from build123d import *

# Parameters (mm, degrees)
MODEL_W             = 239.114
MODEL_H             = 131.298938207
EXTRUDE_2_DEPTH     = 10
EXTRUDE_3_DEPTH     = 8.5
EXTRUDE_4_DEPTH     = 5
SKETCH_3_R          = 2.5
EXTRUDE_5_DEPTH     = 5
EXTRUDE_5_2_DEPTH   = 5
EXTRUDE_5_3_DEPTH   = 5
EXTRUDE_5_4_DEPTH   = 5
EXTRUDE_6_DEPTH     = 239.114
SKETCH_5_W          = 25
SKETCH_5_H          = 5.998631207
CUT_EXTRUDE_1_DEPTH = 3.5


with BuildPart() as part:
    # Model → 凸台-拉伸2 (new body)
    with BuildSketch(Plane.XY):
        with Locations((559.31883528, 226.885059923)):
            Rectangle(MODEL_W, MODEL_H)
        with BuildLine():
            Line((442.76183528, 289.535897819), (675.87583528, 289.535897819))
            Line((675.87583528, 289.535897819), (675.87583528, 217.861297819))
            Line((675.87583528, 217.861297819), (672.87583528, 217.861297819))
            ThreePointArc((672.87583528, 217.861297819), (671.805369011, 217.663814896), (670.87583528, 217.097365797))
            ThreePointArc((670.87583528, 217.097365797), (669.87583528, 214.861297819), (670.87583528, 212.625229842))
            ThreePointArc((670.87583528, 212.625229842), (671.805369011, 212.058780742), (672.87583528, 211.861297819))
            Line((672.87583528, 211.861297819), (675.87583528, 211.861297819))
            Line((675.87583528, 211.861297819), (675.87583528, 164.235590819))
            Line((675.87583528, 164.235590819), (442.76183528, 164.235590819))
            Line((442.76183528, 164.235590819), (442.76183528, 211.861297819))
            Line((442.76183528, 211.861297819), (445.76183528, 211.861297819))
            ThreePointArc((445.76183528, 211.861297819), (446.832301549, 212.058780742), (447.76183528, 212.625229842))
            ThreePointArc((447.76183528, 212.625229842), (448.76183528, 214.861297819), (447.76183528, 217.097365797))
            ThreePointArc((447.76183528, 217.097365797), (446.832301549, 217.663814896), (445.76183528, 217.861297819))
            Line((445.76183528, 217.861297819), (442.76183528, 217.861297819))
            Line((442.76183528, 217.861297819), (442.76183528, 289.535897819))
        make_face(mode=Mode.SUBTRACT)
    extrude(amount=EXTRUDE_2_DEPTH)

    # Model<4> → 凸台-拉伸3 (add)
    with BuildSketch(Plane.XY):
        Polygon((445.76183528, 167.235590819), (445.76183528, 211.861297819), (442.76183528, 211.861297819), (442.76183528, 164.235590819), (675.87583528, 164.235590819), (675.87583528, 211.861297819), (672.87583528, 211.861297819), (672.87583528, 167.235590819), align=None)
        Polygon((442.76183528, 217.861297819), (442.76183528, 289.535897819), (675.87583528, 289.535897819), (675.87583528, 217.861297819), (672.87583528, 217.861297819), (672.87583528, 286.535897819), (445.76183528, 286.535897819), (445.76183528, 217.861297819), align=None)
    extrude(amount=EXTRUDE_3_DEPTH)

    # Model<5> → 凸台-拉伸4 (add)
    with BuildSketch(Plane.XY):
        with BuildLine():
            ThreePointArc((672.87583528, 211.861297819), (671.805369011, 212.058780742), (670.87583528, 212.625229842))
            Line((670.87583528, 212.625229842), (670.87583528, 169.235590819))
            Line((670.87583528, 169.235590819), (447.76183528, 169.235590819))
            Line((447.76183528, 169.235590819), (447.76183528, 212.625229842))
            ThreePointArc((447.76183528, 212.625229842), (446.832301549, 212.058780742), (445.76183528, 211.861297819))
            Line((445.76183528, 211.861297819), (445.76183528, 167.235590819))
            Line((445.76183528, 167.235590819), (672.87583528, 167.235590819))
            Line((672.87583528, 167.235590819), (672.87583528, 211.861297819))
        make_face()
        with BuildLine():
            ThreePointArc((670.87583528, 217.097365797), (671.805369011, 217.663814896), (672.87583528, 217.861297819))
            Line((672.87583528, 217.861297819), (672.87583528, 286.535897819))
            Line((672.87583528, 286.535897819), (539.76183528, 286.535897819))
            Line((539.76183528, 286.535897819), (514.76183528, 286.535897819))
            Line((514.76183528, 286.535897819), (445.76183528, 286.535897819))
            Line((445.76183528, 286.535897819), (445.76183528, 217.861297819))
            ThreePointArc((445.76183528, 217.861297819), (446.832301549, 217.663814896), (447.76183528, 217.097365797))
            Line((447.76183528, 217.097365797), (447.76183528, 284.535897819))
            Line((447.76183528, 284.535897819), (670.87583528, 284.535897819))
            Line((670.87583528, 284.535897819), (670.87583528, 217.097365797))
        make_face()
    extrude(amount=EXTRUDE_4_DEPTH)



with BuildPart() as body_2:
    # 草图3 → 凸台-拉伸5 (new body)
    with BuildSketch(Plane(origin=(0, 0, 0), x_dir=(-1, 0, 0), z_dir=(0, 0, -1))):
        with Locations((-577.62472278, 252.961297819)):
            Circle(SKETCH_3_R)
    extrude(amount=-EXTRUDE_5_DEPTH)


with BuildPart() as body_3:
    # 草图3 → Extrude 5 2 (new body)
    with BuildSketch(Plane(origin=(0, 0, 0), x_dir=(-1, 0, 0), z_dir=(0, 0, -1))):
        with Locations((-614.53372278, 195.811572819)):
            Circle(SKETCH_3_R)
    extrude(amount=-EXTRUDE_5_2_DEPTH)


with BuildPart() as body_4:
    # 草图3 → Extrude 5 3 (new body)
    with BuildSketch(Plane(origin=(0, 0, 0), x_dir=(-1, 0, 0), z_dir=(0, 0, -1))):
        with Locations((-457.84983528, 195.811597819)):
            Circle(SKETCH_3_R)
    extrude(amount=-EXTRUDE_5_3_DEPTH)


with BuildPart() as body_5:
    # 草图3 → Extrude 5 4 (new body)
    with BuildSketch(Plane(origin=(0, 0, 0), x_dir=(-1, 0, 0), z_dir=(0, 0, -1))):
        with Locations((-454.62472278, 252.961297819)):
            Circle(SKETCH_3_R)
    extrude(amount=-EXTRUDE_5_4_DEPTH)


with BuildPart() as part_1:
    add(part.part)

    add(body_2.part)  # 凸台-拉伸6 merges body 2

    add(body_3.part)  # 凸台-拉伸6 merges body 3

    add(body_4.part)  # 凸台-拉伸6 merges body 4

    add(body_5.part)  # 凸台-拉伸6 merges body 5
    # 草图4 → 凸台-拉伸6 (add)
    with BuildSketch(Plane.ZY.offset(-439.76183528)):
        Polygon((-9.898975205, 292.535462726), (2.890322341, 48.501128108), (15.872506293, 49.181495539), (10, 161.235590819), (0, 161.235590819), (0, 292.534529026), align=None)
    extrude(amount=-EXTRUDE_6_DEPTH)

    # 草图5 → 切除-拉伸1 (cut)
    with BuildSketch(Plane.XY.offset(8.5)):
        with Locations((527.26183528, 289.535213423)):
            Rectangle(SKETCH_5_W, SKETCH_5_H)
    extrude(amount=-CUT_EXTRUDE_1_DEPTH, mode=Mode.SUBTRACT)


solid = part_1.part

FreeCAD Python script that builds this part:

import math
import FreeCAD as App
import Part
import Sketcher
Q = App.Units.Quantity


def add_polygon(sketch, points):
    """Adds a closed chain of lines whose ends are joined by coincident constraints."""
    first, n = sketch.GeometryCount, len(points)
    for a, b in zip(points, points[1:] + points[:1]):
        sketch.addGeometry(Part.LineSegment(App.Vector(*a, 0), App.Vector(*b, 0)), False)
    for i in range(n):
        sketch.addConstraint(Sketcher.Constraint("Coincident", first + i, 2, first + (i + 1) % n, 1))

doc = App.newDocument("Part")
params = doc.addObject("Spreadsheet::Sheet", "Params")
for row, (alias, value) in enumerate([
    ("sketch1_radius", "3 mm"),
    ("sketch1_width", "3 mm"),
    ("pad1_length", "10 mm"),
    ("sketch2_width", "3 mm"),
    ("pad2_length", "8.5 mm"),
    ("sketch3_radius", "3 mm"),
    ("sketch3_width", "2 mm"),
    ("pad3_length", "5 mm"),
    ("sketch4_diameter", "5 mm"),
    ("pad4_length", "5 mm"),
    ("sketch5_diameter", "5 mm"),
    ("pad5_length", "5 mm"),
    ("sketch6_diameter", "5 mm"),
    ("pad6_length", "5 mm"),
    ("sketch7_diameter", "5 mm"),
    ("pad7_length", "5 mm"),
    ("sketch8_height", "10 mm"),
    ("sketch8_length", "13 mm"),
    ("pad8_length", "239.114 mm"),
    ("sketch9_width", "25 mm"),
    ("pocket1_length", "3.5 mm"),
], start=1):
    params.set(f"A{row}", alias)
    params.set(f"B{row}", "=" + value)
    params.setAlias(f"B{row}", alias)

body = doc.addObject("PartDesign::Body", "Body")

# Sketch on XY plane
sketch1 = body.newObject("Sketcher::SketchObject", "Sketch")
sketch1.AttachmentSupport = (doc.getObject("XY_Plane"), [""])
sketch1.MapMode = "FlatFace"
add_polygon(sketch1, [(439.8, 292.5), (439.8, 161.2), (678.9, 161.2), (678.9, 292.5)])  # lines 0-3
sketch1.addGeometry(Part.LineSegment(App.Vector(442.8, 217.9, 0), App.Vector(442.8, 289.5, 0)), False)  # 4
sketch1.addGeometry(Part.LineSegment(App.Vector(442.8, 289.5, 0), App.Vector(675.9, 289.5, 0)), False)  # 5
sketch1.addGeometry(Part.LineSegment(App.Vector(675.9, 289.5, 0), App.Vector(675.9, 217.9, 0)), False)  # 6
sketch1.addGeometry(Part.LineSegment(App.Vector(675.9, 217.9, 0), App.Vector(672.9, 217.9, 0)), False)  # 7
sketch1.addGeometry(Part.ArcOfCircle(Part.Circle(App.Vector(672.9, 214.9, 0), App.Vector(0, 0, 1), 3), math.radians(90), math.radians(132)), False)  # 8
sketch1.addGeometry(Part.ArcOfCircle(Part.Circle(App.Vector(672.9, 214.9, 0), App.Vector(0, 0, 1), 3), math.radians(132), math.radians(228)), False)  # 9
sketch1.addGeometry(Part.ArcOfCircle(Part.Circle(App.Vector(672.9, 214.9, 0), App.Vector(0, 0, 1), 3), math.radians(-132), math.radians(-90)), False)  # 10
sketch1.addGeometry(Part.LineSegment(App.Vector(672.9, 211.9, 0), App.Vector(675.9, 211.9, 0)), False)  # 11
sketch1.addGeometry(Part.LineSegment(App.Vector(675.9, 211.9, 0), App.Vector(675.9, 164.2, 0)), False)  # 12
sketch1.addGeometry(Part.LineSegment(App.Vector(675.9, 164.2, 0), App.Vector(442.8, 164.2, 0)), False)  # 13
sketch1.addGeometry(Part.LineSegment(App.Vector(442.8, 164.2, 0), App.Vector(442.8, 211.9, 0)), False)  # 14
sketch1.addGeometry(Part.LineSegment(App.Vector(442.8, 211.9, 0), App.Vector(445.8, 211.9, 0)), False)  # 15
sketch1.addGeometry(Part.ArcOfCircle(Part.Circle(App.Vector(445.8, 214.9, 0), App.Vector(0, 0, 1), 3), math.radians(-90), math.radians(-48)), False)  # 16
sketch1.addGeometry(Part.ArcOfCircle(Part.Circle(App.Vector(445.8, 214.9, 0), App.Vector(0, 0, 1), 3), math.radians(-48), math.radians(48)), False)  # 17
sketch1.addGeometry(Part.ArcOfCircle(Part.Circle(App.Vector(445.8, 214.9, 0), App.Vector(0, 0, 1), 3), math.radians(48), math.radians(90)), False)  # 18
sketch1.addGeometry(Part.LineSegment(App.Vector(445.8, 217.9, 0), App.Vector(442.8, 217.9, 0)), False)  # 19
sketch1.addConstraint([
    Sketcher.Constraint("Coincident", 4, 2, 5, 1),
    Sketcher.Constraint("Coincident", 5, 2, 6, 1),
    Sketcher.Constraint("Coincident", 6, 2, 7, 1),
    Sketcher.Constraint("Tangent", 7, 2, 8, 1),
    Sketcher.Constraint("Tangent", 8, 2, 9, 1),
    Sketcher.Constraint("Tangent", 9, 2, 10, 1),
    Sketcher.Constraint("Tangent", 10, 2, 11, 1),
    Sketcher.Constraint("Coincident", 11, 2, 12, 1),
    Sketcher.Constraint("Coincident", 12, 2, 13, 1),
    Sketcher.Constraint("Coincident", 13, 2, 14, 1),
    Sketcher.Constraint("Coincident", 14, 2, 15, 1),
    Sketcher.Constraint("Tangent", 15, 2, 16, 1),
    Sketcher.Constraint("Tangent", 16, 2, 17, 1),
    Sketcher.Constraint("Tangent", 17, 2, 18, 1),
    Sketcher.Constraint("Tangent", 18, 2, 19, 1),
    Sketcher.Constraint("Coincident", 19, 2, 4, 1),
    Sketcher.Constraint("Vertical", 0),
    Sketcher.Constraint("Horizontal", 1),
    Sketcher.Constraint("Vertical", 2),
    Sketcher.Constraint("Horizontal", 3),
    Sketcher.Constraint("Vertical", 4),
    Sketcher.Constraint("Horizontal", 5),
    Sketcher.Constraint("Vertical", 6),
    Sketcher.Constraint("Horizontal", 7),
    Sketcher.Constraint("Horizontal", 11),
    Sketcher.Constraint("Vertical", 12),
    Sketcher.Constraint("Horizontal", 13),
    Sketcher.Constraint("Vertical", 14),
    Sketcher.Constraint("Horizontal", 15),
    Sketcher.Constraint("Horizontal", 19),
    Sketcher.Constraint("Coincident", 10, 3, 8, 3),
    Sketcher.Constraint("Coincident", 18, 3, 16, 3),
    Sketcher.Constraint("Equal", 10, 16),
    Sketcher.Constraint("Horizontal", 10, 3, 16, 3),
    Sketcher.Constraint("Horizontal", 9, 2, 16, 2),
    Sketcher.Constraint("Horizontal", 8, 2, 17, 2),
    Sketcher.Constraint("Vertical", 8, 2, 9, 2),
    Sketcher.Constraint("Vertical", 6, 2, 11, 2),
    Sketcher.Constraint("Vertical", 4, 2, 13, 2),
    Sketcher.Constraint("Equal", 11, 15),
    Sketcher.Constraint("Radius", 8, Q("3 mm")),
    Sketcher.Constraint("DistanceX", 7, 2, 7, 1, Q("3 mm")),
    Sketcher.Constraint("DistanceX", 0, 2, 18, 3, Q("6 mm")),
    Sketcher.Constraint("DistanceX", 8, 3, 1, 2, Q("6 mm")),
    Sketcher.Constraint("DistanceX", 8, 2, 7, 2, Q("2 mm")),
    Sketcher.Constraint("DistanceY", 1, 2, 12, 2, Q("3 mm")),
    Sketcher.Constraint("DistanceX", 1, 1, 1, 2, Q("239.114 mm")),
    Sketcher.Constraint("DistanceY", 4, 1, 4, 2, Q("71.6746 mm")),
    Sketcher.Constraint("DistanceY", 0, 2, 0, 1, Q("131.298938 mm")),
    Sketcher.Constraint("DistanceY", 12, 2, 12, 1, Q("47.625707 mm")),
    Sketcher.Constraint("DistanceY", -1, 1, 0, 2, Q("161.235591 mm")),
    Sketcher.Constraint("DistanceX", -1, 1, 8, 3, Q("672.875835 mm")),
])
sketch1.setExpression("Constraints[44]", "Params.sketch1_radius")
sketch1.setExpression("Constraints[45]", "Params.sketch1_width")
pad1 = body.newObject("PartDesign::Pad", "Pad")
pad1.Profile = sketch1
pad1.setExpression("Length", "Params.pad1_length")

# Sketch on XY plane
sketch2 = body.newObject("Sketcher::SketchObject", "Sketch001")
sketch2.AttachmentSupport = (doc.getObject("XY_Plane"), [""])
sketch2.MapMode = "FlatFace"
add_polygon(sketch2, [(445.8, 167.2), (445.8, 211.9), (442.8, 211.9), (442.8, 164.2), (675.9, 164.2), (675.9, 211.9), (672.9, 211.9), (672.9, 167.2)])  # lines 0-7
add_polygon(sketch2, [(442.8, 289.5), (442.8, 217.9), (445.8, 217.9), (445.8, 286.5), (672.9, 286.5), (672.9, 217.9), (675.9, 217.9), (675.9, 289.5)])  # lines 8-15
sketch2.addConstraint([
    Sketcher.Constraint("Vertical", 0),
    Sketcher.Constraint("Horizontal", 1),
    Sketcher.Constraint("Vertical", 2),
    Sketcher.Constraint("Horizontal", 3),
    Sketcher.Constraint("Vertical", 4),
    Sketcher.Constraint("Horizontal", 5),
    Sketcher.Constraint("Vertical", 6),
    Sketcher.Constraint("Horizontal", 7),
    Sketcher.Constraint("Vertical", 8),
    Sketcher.Constraint("Horizontal", 9),
    Sketcher.Constraint("Vertical", 10),
    Sketcher.Constraint("Horizontal", 11),
    Sketcher.Constraint("Vertical", 12),
    Sketcher.Constraint("Horizontal", 13),
    Sketcher.Constraint("Vertical", 14),
    Sketcher.Constraint("Horizontal", 15),
    Sketcher.Constraint("Horizontal", 1, 2, 4, 2),
    Sketcher.Constraint("Horizontal", 9, 2, 12, 2),
    Sketcher.Constraint("Vertical", 2, 2, 8, 2),
    Sketcher.Constraint("Vertical", 7, 2, 9, 2),
    Sketcher.Constraint("Vertical", 6, 2, 11, 2),
    Sketcher.Constraint("Vertical", 4, 2, 13, 2),
    Sketcher.Constraint("Equal", 1, 5),
    Sketcher.Constraint("DistanceX", 1, 2, 1, 1, Q("3 mm")),
    Sketcher.Constraint("DistanceY", 3, 2, 6, 2, Q("3 mm")),
    Sketcher.Constraint("DistanceY", 1, 2, 8, 2, Q("6 mm")),
    Sketcher.Constraint("DistanceY", 11, 2, 14, 2, Q("3 mm")),
    Sketcher.Constraint("DistanceX", 3, 1, 3, 2, Q("233.114 mm")),
    Sketcher.Constraint("DistanceY", 8, 2, 8, 1, Q("71.6746 mm")),
    Sketcher.Constraint("DistanceY", 0, 1, 0, 2, Q("44.625707 mm")),
    Sketcher.Constraint("DistanceY", -1, 1, 2, 2, Q("164.235591 mm")),
    Sketcher.Constraint("DistanceX", -1, 1, 0, 2, Q("445.761835 mm")),
])
sketch2.setExpression("Constraints[39]", "Params.sketch2_width")
pad2 = body.newObject("PartDesign::Pad", "Pad001")
pad2.Profile = sketch2
pad2.setExpression("Length", "Params.pad2_length")

# Sketch on XY plane
sketch3 = body.newObject("Sketcher::SketchObject", "Sketch002")
sketch3.AttachmentSupport = (doc.getObject("XY_Plane"), [""])
sketch3.MapMode = "FlatFace"
sketch3.addGeometry([
    Part.ArcOfCircle(Part.Circle(App.Vector(672.9, 214.9, 0), App.Vector(0, 0, 1), 3), math.radians(-132), math.radians(-90)),  # 0
    Part.LineSegment(App.Vector(670.9, 212.6, 0), App.Vector(670.9, 169.2, 0)),  # 1
    Part.LineSegment(App.Vector(670.9, 169.2, 0), App.Vector(447.8, 169.2, 0)),  # 2
    Part.LineSegment(App.Vector(447.8, 169.2, 0), App.Vector(447.8, 212.6, 0)),  # 3
    Part.ArcOfCircle(Part.Circle(App.Vector(445.8, 214.9, 0), App.Vector(0, 0, 1), 3), math.radians(-90), math.radians(-48)),  # 4
    Part.LineSegment(App.Vector(445.8, 211.9, 0), App.Vector(445.8, 167.2, 0)),  # 5
    Part.LineSegment(App.Vector(445.8, 167.2, 0), App.Vector(672.9, 167.2, 0)),  # 6
    Part.LineSegment(App.Vector(672.9, 167.2, 0), App.Vector(672.9, 211.9, 0)),  # 7
    Part.ArcOfCircle(Part.Circle(App.Vector(672.9, 214.9, 0), App.Vector(0, 0, 1), 3), math.radians(90), math.radians(132)),  # 8
    Part.LineSegment(App.Vector(672.9, 217.9, 0), App.Vector(672.9, 286.5, 0)),  # 9
    Part.LineSegment(App.Vector(672.9, 286.5, 0), App.Vector(445.8, 286.5, 0)),  # 10
    Part.LineSegment(App.Vector(445.8, 286.5, 0), App.Vector(445.8, 217.9, 0)),  # 11
    Part.ArcOfCircle(Part.Circle(App.Vector(445.8, 214.9, 0), App.Vector(0, 0, 1), 3), math.radians(48), math.radians(90)),  # 12
    Part.LineSegment(App.Vector(447.8, 217.1, 0), App.Vector(447.8, 284.5, 0)),  # 13
    Part.LineSegment(App.Vector(447.8, 284.5, 0), App.Vector(670.9, 284.5, 0)),  # 14
    Part.LineSegment(App.Vector(670.9, 284.5, 0), App.Vector(670.9, 217.1, 0)),  # 15
], False)
sketch3.addConstraint([
    Sketcher.Constraint("Coincident", 0, 1, 1, 1),
    Sketcher.Constraint("Coincident", 1, 2, 2, 1),
    Sketcher.Constraint("Coincident", 2, 2, 3, 1),
    Sketcher.Constraint("Coincident", 3, 2, 4, 2),
    Sketcher.Constraint("Coincident", 4, 1, 5, 1),
    Sketcher.Constraint("Coincident", 5, 2, 6, 1),
    Sketcher.Constraint("Coincident", 6, 2, 7, 1),
    Sketcher.Constraint("Coincident", 7, 2, 0, 2),
    Sketcher.Constraint("Coincident", 8, 1, 9, 1),
    Sketcher.Constraint("Coincident", 9, 2, 10, 1),
    Sketcher.Constraint("Coincident", 10, 2, 11, 1),
    Sketcher.Constraint("Coincident", 11, 2, 12, 2),
    Sketcher.Constraint("Coincident", 12, 1, 13, 1),
    Sketcher.Constraint("Coincident", 13, 2, 14, 1),
    Sketcher.Constraint("Coincident", 14, 2, 15, 1),
    Sketcher.Constraint("Coincident", 15, 2, 8, 2),
    Sketcher.Constraint("Vertical", 1),
    Sketcher.Constraint("Horizontal", 2),
    Sketcher.Constraint("Vertical", 3),
    Sketcher.Constraint("Vertical", 5),
    Sketcher.Constraint("Horizontal", 6),
    Sketcher.Constraint("Vertical", 7),
    Sketcher.Constraint("Vertical", 9),
    Sketcher.Constraint("Horizontal", 10),
    Sketcher.Constraint("Vertical", 11),
    Sketcher.Constraint("Vertical", 13),
    Sketcher.Constraint("Horizontal", 14),
    Sketcher.Constraint("Vertical", 15),
    Sketcher.Constraint("Coincident", 8, 3, 0, 3),
    Sketcher.Constraint("Coincident", 12, 3, 4, 3),
    Sketcher.Constraint("Equal", 0, 4),
    Sketcher.Constraint("Equal", 4, 8),
    Sketcher.Constraint("Equal", 8, 12),
    Sketcher.Constraint("Horizontal", 0, 3, 4, 3),
    Sketcher.Constraint("Horizontal", 0, 1, 3, 2),
    Sketcher.Constraint("Horizontal", 12, 1, 15, 2),
    Sketcher.Constraint("Vertical", 12, 3, 4, 1),
    Sketcher.Constraint("Vertical", 8, 3, 6, 2),
    Sketcher.Constraint("Vertical", 7, 2, 8, 1),
    Sketcher.Constraint("Vertical", 5, 2, 10, 2),
    Sketcher.Constraint("Vertical", 3, 2, 12, 1),
    Sketcher.Constraint("Radius", 0, Q("3 mm")),
    Sketcher.Constraint("DistanceX", 0, 1, 0, 3, Q("2 mm")),
    Sketcher.Constraint("DistanceY", 5, 2, 2, 2, Q("2 mm")),
    Sketcher.Constraint("DistanceY", 13, 2, 10, 2, Q("2 mm")),
    Sketcher.Constraint("DistanceX", 2, 2, 2, 1, Q("223.114 mm")),
    Sketcher.Constraint("DistanceY", 9, 1, 9, 2, Q("68.6746 mm")),
    Sketcher.Constraint("DistanceY", 1, 2, 1, 1, Q("43.389639 mm")),
    Sketcher.Constraint("DistanceY", -1, 1, 0, 1, Q("212.62523 mm")),
    Sketcher.Constraint("DistanceX", -1, 1, 0, 3, Q("672.875835 mm")),
])
sketch3.setExpression("Constraints[41]", "Params.sketch3_radius")
sketch3.setExpression("Constraints[42]", "Params.sketch3_width")
pad3 = body.newObject("PartDesign::Pad", "Pad002")
pad3.Profile = sketch3
pad3.setExpression("Length", "Params.pad3_length")
body2 = doc.addObject("PartDesign::Body", "Body001")

# Sketch on XY plane
sketch4 = body2.newObject("Sketcher::SketchObject", "Sketch003")
sketch4.AttachmentSupport = (doc.getObject("XY_Plane001"), [""])
sketch4.MapMode = "FlatFace"
sketch4.addGeometry(Part.Circle(App.Vector(577.6, 253, 0), App.Vector(0, 0, 1), 2.5), False)
sketch4.addConstraint([
    Sketcher.Constraint("Diameter", 0, Q("5 mm")),
    Sketcher.Constraint("DistanceX", -1, 1, 0, 3, Q("577.624723 mm")),
    Sketcher.Constraint("DistanceY", -1, 1, 0, 3, Q("252.961298 mm")),
])
sketch4.setExpression("Constraints[0]", "Params.sketch4_diameter")
pad4 = body2.newObject("PartDesign::Pad", "Pad003")
pad4.Profile = sketch4
pad4.setExpression("Length", "Params.pad4_length")
body3 = doc.addObject("PartDesign::Body", "Body002")

# Sketch on XY plane
sketch5 = body3.newObject("Sketcher::SketchObject", "Sketch004")
sketch5.AttachmentSupport = (doc.getObject("XY_Plane002"), [""])
sketch5.MapMode = "FlatFace"
sketch5.addGeometry(Part.Circle(App.Vector(614.5, 195.8, 0), App.Vector(0, 0, 1), 2.5), False)
sketch5.addConstraint([
    Sketcher.Constraint("Diameter", 0, Q("5 mm")),
    Sketcher.Constraint("DistanceX", -1, 1, 0, 3, Q("614.533723 mm")),
    Sketcher.Constraint("DistanceY", -1, 1, 0, 3, Q("195.811573 mm")),
])
sketch5.setExpression("Constraints[0]", "Params.sketch5_diameter")
pad5 = body3.newObject("PartDesign::Pad", "Pad004")
pad5.Profile = sketch5
pad5.setExpression("Length", "Params.pad5_length")
body4 = doc.addObject("PartDesign::Body", "Body003")

# Sketch on XY plane
sketch6 = body4.newObject("Sketcher::SketchObject", "Sketch005")
sketch6.AttachmentSupport = (doc.getObject("XY_Plane003"), [""])
sketch6.MapMode = "FlatFace"
sketch6.addGeometry(Part.Circle(App.Vector(457.8, 195.8, 0), App.Vector(0, 0, 1), 2.5), False)
sketch6.addConstraint([
    Sketcher.Constraint("Diameter", 0, Q("5 mm")),
    Sketcher.Constraint("DistanceX", -1, 1, 0, 3, Q("457.849835 mm")),
    Sketcher.Constraint("DistanceY", -1, 1, 0, 3, Q("195.811598 mm")),
])
sketch6.setExpression("Constraints[0]", "Params.sketch6_diameter")
pad6 = body4.newObject("PartDesign::Pad", "Pad005")
pad6.Profile = sketch6
pad6.setExpression("Length", "Params.pad6_length")
body5 = doc.addObject("PartDesign::Body", "Body004")

# Sketch on XY plane
sketch7 = body5.newObject("Sketcher::SketchObject", "Sketch006")
sketch7.AttachmentSupport = (doc.getObject("XY_Plane004"), [""])
sketch7.MapMode = "FlatFace"
sketch7.addGeometry(Part.Circle(App.Vector(454.6, 253, 0), App.Vector(0, 0, 1), 2.5), False)
sketch7.addConstraint([
    Sketcher.Constraint("Diameter", 0, Q("5 mm")),
    Sketcher.Constraint("DistanceX", -1, 1, 0, 3, Q("454.624723 mm")),
    Sketcher.Constraint("DistanceY", -1, 1, 0, 3, Q("252.961298 mm")),
])
sketch7.setExpression("Constraints[0]", "Params.sketch7_diameter")
pad7 = body5.newObject("PartDesign::Pad", "Pad006")
pad7.Profile = sketch7
pad7.setExpression("Length", "Params.pad7_length")
body.AllowCompound = True
doc.recompute()

boolean = body.newObject("PartDesign::Boolean", "Boolean")
boolean.Type = "Fuse"
boolean.addObjects([body2])
doc.recompute()

boolean2 = body.newObject("PartDesign::Boolean", "Boolean001")
boolean2.Type = "Fuse"
boolean2.addObjects([body3])
doc.recompute()

boolean3 = body.newObject("PartDesign::Boolean", "Boolean002")
boolean3.Type = "Fuse"
boolean3.addObjects([body4])
doc.recompute()

boolean4 = body.newObject("PartDesign::Boolean", "Boolean003")
boolean4.Type = "Fuse"
boolean4.addObjects([body5])

# Sketch on YZ plane
sketch8 = body.newObject("Sketcher::SketchObject", "Sketch007")
sketch8.AttachmentSupport = (doc.getObject("YZ_Plane"), [""])
sketch8.MapMode = "FlatFace"
sketch8.AttachmentOffset = App.Placement(App.Vector(0, 0, 439.761835), App.Rotation())
add_polygon(sketch8, [(293, -10), (49, 3), (49, 16), (161, 10), (161, 0), (293, 0)])  # lines 0-5
sketch8.addConstraint([
    Sketcher.Constraint("Vertical", 3),
    Sketcher.Constraint("Horizontal", 4),
    Sketcher.Constraint("PointOnObject", 3, 2, -1),
    Sketcher.Constraint("Perpendicular", 0, 1),
    Sketcher.Constraint("Perpendicular", 1, 2),
    Sketcher.Constraint("DistanceY", 3, 2, 3, 1, Q("10 mm")),
    Sketcher.Constraint("Angle", 0, Q("177 deg")),
    Sketcher.Constraint("Distance", 1, Q("13 mm")),
    Sketcher.Constraint("DistanceX", 4, 1, 4, 2, Q("131.298938 mm")),
    Sketcher.Constraint("DistanceX", 0, 2, 4, 2, Q("244.033401 mm")),
    Sketcher.Constraint("DistanceX", -1, 1, 0, 2, Q("48.501128 mm")),
    Sketcher.Constraint("DistanceX", 3, 2, 5, 2, Q("131.299872 mm")),
])
sketch8.setExpression("Constraints[11]", "Params.sketch8_height")
sketch8.setExpression("Constraints[13]", "Params.sketch8_length")
pad8 = body.newObject("PartDesign::Pad", "Pad007")
pad8.Profile = sketch8
pad8.setExpression("Length", "Params.pad8_length")

# Sketch on XY plane
sketch9 = body.newObject("Sketcher::SketchObject", "Sketch008")
sketch9.AttachmentSupport = (doc.getObject("XY_Plane"), [""])
sketch9.MapMode = "FlatFace"
sketch9.AttachmentOffset = App.Placement(App.Vector(0, 0, 8.5), App.Rotation())
add_polygon(sketch9, [(515, 293), (515, 287), (540, 287), (540, 293)])  # lines 0-3
sketch9.addConstraint([
    Sketcher.Constraint("Vertical", 0),
    Sketcher.Constraint("Horizontal", 1),
    Sketcher.Constraint("Vertical", 2),
    Sketcher.Constraint("Horizontal", 3),
    Sketcher.Constraint("DistanceX", 1, 1, 1, 2, Q("25 mm")),
    Sketcher.Constraint("DistanceY", 0, 2, 0, 1, Q("5.998631 mm")),
    Sketcher.Constraint("DistanceY", -1, 1, 2, 2, Q("292.534529 mm")),
    Sketcher.Constraint("DistanceX", -1, 1, 0, 2, Q("514.761835 mm")),
])
sketch9.setExpression("Constraints[8]", "Params.sketch9_width")
pocket1 = body.newObject("PartDesign::Pocket", "Pocket")
pocket1.Profile = sketch9
pocket1.setExpression("Length", "Params.pocket1_length")

doc.recompute()
